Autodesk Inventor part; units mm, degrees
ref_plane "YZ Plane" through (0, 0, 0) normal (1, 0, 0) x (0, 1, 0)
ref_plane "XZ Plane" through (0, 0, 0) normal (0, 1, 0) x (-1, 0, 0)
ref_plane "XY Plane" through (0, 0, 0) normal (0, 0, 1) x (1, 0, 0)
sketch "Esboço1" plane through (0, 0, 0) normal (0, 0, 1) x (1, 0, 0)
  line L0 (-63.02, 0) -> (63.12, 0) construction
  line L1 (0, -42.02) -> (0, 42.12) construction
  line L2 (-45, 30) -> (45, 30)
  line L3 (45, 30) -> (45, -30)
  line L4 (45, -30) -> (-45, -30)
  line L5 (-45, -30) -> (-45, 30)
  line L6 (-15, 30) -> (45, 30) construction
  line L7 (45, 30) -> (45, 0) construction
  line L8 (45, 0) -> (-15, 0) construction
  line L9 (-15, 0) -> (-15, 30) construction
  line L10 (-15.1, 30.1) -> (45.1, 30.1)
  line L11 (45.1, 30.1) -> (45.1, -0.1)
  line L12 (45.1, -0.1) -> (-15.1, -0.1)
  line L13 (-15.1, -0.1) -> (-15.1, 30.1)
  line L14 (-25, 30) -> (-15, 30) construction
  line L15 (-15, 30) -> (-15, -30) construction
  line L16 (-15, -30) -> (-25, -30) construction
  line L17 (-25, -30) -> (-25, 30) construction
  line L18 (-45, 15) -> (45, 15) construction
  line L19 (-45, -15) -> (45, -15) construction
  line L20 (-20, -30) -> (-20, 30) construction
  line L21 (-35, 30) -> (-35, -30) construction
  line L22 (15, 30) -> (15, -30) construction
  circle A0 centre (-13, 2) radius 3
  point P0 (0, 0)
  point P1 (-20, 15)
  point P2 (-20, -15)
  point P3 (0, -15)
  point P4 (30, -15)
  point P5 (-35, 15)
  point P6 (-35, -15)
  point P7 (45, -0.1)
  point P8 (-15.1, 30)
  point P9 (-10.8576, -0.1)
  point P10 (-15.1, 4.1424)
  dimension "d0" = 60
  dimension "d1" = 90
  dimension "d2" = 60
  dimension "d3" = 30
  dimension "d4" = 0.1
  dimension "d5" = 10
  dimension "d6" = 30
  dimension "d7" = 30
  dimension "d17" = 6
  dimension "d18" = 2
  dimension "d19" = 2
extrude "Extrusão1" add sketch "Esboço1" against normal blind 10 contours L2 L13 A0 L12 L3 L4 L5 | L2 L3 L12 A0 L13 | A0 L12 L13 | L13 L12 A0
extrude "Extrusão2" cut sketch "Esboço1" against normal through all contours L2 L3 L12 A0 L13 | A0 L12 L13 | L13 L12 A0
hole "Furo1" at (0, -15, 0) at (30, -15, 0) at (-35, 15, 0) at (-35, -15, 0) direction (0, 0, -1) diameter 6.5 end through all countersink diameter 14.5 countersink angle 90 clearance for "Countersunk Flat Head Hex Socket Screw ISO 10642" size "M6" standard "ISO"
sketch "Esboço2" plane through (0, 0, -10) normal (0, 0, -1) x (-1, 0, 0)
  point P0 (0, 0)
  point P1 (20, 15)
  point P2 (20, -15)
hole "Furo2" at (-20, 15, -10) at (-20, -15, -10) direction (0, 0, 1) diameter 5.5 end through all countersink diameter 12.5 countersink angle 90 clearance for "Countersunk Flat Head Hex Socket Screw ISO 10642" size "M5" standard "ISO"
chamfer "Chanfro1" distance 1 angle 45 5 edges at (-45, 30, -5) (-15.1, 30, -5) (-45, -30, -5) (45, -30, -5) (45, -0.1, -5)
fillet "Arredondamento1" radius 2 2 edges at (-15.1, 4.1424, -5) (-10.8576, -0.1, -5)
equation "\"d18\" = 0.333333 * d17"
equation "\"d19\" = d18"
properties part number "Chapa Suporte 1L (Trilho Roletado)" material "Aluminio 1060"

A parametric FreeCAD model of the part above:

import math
import FreeCAD as App
import Part
import Sketcher


def edges_at(feature, points):
    """Names of the edges that pass closest to the given points."""
    edges = feature.Shape.Edges
    near = lambda p: min(range(len(edges)), key=lambda i: edges[i].distToShape(Part.Vertex(*p))[0])
    return sorted({f"Edge{near(p) + 1}" for p in points})


def add_polygon(sketch, points):
    """Adds a closed chain of lines whose ends are joined by coincident constraints."""
    first, n = sketch.GeometryCount, len(points)
    for a, b in zip(points, points[1:] + points[:1]):
        sketch.addGeometry(Part.LineSegment(App.Vector(*a, 0), App.Vector(*b, 0)), False)
    for i in range(n):
        sketch.addConstraint(Sketcher.Constraint("Coincident", first + i, 2, first + (i + 1) % n, 1))

doc = App.newDocument("Part")
body = doc.addObject("PartDesign::Body", "Body")

sketch1 = body.newObject("Sketcher::SketchObject", "Sketch")
sketch1.AttachmentSupport = (doc.getObject("XY_Plane"), [""])
sketch1.MapMode = "FlatFace"
add_polygon(sketch1, [(-45, 30), (-45, -30), (45, -30), (45, 30)])
sketch1.addConstraint(Sketcher.Constraint("Vertical", 0))
sketch1.addConstraint(Sketcher.Constraint("Horizontal", 1))
sketch1.addConstraint(Sketcher.Constraint("Vertical", 2))
sketch1.addConstraint(Sketcher.Constraint("Horizontal", 3))
sketch1.addConstraint(Sketcher.Constraint("Symmetric", 0, 2, 2, 2, -1, 1))
sketch1.addConstraint(Sketcher.Constraint("DistanceX", 1, 1, 1, 2, 90.0))
sketch1.addConstraint(Sketcher.Constraint("DistanceY", 0, 2, 0, 1, 60.0))
pad1 = body.newObject("PartDesign::Pad", "Pad")
pad1.Profile = sketch1
pad1.Length = 10
pad1.Reversed = True

sketch2 = body.newObject("Sketcher::SketchObject", "Sketch001")
sketch2.AttachmentSupport = (doc.getObject("XY_Plane"), [""])
sketch2.MapMode = "FlatFace"
sketch2.addGeometry(Part.LineSegment(App.Vector(45, 30, 0), App.Vector(-15.1, 30, 0)), False)
sketch2.addGeometry(Part.LineSegment(App.Vector(-15.1, 30, 0), App.Vector(-15.1, 4.1, 0)), False)
sketch2.addGeometry(Part.ArcOfCircle(Part.Circle(App.Vector(-13, 2, 0), App.Vector(0, 0, 1), 3), math.radians(134), math.radians(316)), False)
sketch2.addGeometry(Part.LineSegment(App.Vector(-10.9, -0.1, 0), App.Vector(45, -0.1, 0)), False)
sketch2.addGeometry(Part.LineSegment(App.Vector(45, -0.1, 0), App.Vector(45, 30, 0)), False)
sketch2.addConstraint(Sketcher.Constraint("Coincident", 0, 2, 1, 1))
sketch2.addConstraint(Sketcher.Constraint("Coincident", 1, 2, 2, 1))
sketch2.addConstraint(Sketcher.Constraint("Coincident", 2, 2, 3, 1))
sketch2.addConstraint(Sketcher.Constraint("Coincident", 3, 2, 4, 1))
sketch2.addConstraint(Sketcher.Constraint("Coincident", 4, 2, 0, 1))
sketch2.addConstraint(Sketcher.Constraint("Horizontal", 0))
sketch2.addConstraint(Sketcher.Constraint("Vertical", 1))
sketch2.addConstraint(Sketcher.Constraint("Horizontal", 3))
sketch2.addConstraint(Sketcher.Constraint("Vertical", 4))
sketch2.addConstraint(Sketcher.Constraint("Radius", 2, 3.0))
sketch2.addConstraint(Sketcher.Constraint("DistanceY", -1, 1, 2, 3, 2.0))
sketch2.addConstraint(Sketcher.Constraint("DistanceY", -1, 1, 0, 2, 30.0))
sketch2.addConstraint(Sketcher.Constraint("DistanceY", 2, 2, -1, 1, 0.1))
sketch2.addConstraint(Sketcher.Constraint("DistanceX", 0, 2, 0, 1, 60.1))
sketch2.addConstraint(Sketcher.Constraint("DistanceX", 2, 3, -1, 1, 13.0))
sketch2.addConstraint(Sketcher.Constraint("DistanceX", -1, 1, 3, 2, 45.0))
pocket1 = body.newObject("PartDesign::Pocket", "Pocket")
pocket1.Profile = sketch2
pocket1.Type = "ThroughAll"

sketch3 = body.newObject("Sketcher::SketchObject", "Sketch002")
sketch3.AttachmentSupport = (doc.getObject("XY_Plane"), [""])
sketch3.MapMode = "FlatFace"
sketch3.addGeometry(Part.Circle(App.Vector(0, -15, 0), App.Vector(0, 0, 1), 3.2), False)
sketch3.addGeometry(Part.Circle(App.Vector(30, -15, 0), App.Vector(0, 0, 1), 3.2), False)
sketch3.addGeometry(Part.Circle(App.Vector(-35, 15, 0), App.Vector(0, 0, 1), 3.2), False)
sketch3.addGeometry(Part.Circle(App.Vector(-35, -15, 0), App.Vector(0, 0, 1), 3.2), False)
sketch3.addConstraint(Sketcher.Constraint("Equal", 0, 1))
sketch3.addConstraint(Sketcher.Constraint("Equal", 1, 2))
sketch3.addConstraint(Sketcher.Constraint("Equal", 2, 3))
sketch3.addConstraint(Sketcher.Constraint("Symmetric", 2, 3, 3, 3, -1))
sketch3.addConstraint(Sketcher.Constraint("PointOnObject", 0, 3, -2))
sketch3.addConstraint(Sketcher.Constraint("Horizontal", 0, 3, 1, 3))
sketch3.addConstraint(Sketcher.Constraint("Horizontal", 1, 3, 3, 3))
sketch3.addConstraint(Sketcher.Constraint("Diameter", 0, 6.5))
sketch3.addConstraint(Sketcher.Constraint("DistanceY", 0, 3, -1, 1, 15.0))
sketch3.addConstraint(Sketcher.Constraint("DistanceX", -1, 1, 1, 3, 30.0))
sketch3.addConstraint(Sketcher.Constraint("DistanceX", 2, 3, -1, 1, 35.0))
doc.recompute()
hole = body.newObject("PartDesign::Hole", "Hole")
hole.Profile = sketch3
hole.ThreadType = "None"
hole.Diameter = 6.5
hole.DepthType = "ThroughAll"
hole.HoleCutType = "Countersink"
hole.HoleCutDiameter = 14.5
hole.HoleCutCountersinkAngle = 90

sketch4 = body.newObject("Sketcher::SketchObject", "Sketch003")
sketch4.AttachmentSupport = (doc.getObject("XY_Plane"), [""])
sketch4.MapMode = "FlatFace"
sketch4.AttachmentOffset = App.Placement(App.Vector(0, 0, -10), App.Rotation())
sketch4.addGeometry(Part.Circle(App.Vector(-20, 15, 0), App.Vector(0, 0, 1), 2.8), False)
sketch4.addGeometry(Part.Circle(App.Vector(-20, -15, 0), App.Vector(0, 0, 1), 2.8), False)
sketch4.addConstraint(Sketcher.Constraint("Equal", 0, 1))
sketch4.addConstraint(Sketcher.Constraint("Symmetric", 0, 3, 1, 3, -1))
sketch4.addConstraint(Sketcher.Constraint("Diameter", 0, 5.5))
sketch4.addConstraint(Sketcher.Constraint("DistanceX", 0, 3, -1, 1, 20.0))
sketch4.addConstraint(Sketcher.Constraint("DistanceY", -1, 1, 0, 3, 15.0))
doc.recompute()
hole2 = body.newObject("PartDesign::Hole", "Hole001")
hole2.Profile = sketch4
hole2.ThreadType = "None"
hole2.Diameter = 5.5
hole2.DepthType = "ThroughAll"
hole2.HoleCutType = "Countersink"
hole2.HoleCutDiameter = 12.5
hole2.HoleCutCountersinkAngle = 90
hole2.Reversed = True
doc.recompute()

chamfer = body.newObject("PartDesign::Chamfer", "Chamfer")
chamfer.Base = (hole2, edges_at(hole2, [
    (-45, 30, -5),
    (-15.1, 30, -5),
    (-45, -30, -5),
    (45, -30, -5),
    (45, -0.1, -5),
]))
chamfer.Size = 1
doc.recompute()

fillet = body.newObject("PartDesign::Fillet", "Fillet")
fillet.Base = (chamfer, edges_at(chamfer, [(-15.1, 4.142, -5), (-10.858, -0.1, -5)]))
fillet.Radius = 2

doc.recompute()
